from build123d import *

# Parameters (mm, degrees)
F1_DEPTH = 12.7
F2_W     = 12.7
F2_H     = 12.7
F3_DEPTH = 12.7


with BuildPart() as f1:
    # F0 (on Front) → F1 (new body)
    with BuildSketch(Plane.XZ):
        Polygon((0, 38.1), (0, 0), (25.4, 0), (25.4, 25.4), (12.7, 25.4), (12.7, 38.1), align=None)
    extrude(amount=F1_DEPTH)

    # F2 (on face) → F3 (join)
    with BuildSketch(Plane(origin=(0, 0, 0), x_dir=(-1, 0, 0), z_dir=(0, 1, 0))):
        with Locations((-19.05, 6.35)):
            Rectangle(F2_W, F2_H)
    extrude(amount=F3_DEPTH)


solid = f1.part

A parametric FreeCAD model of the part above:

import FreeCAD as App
import Part
import Sketcher
from FreeCAD import Vector
Q = App.Units.Quantity


def add_polygon(sketch, points):
    """Adds a closed chain of lines whose ends are joined by coincident constraints."""
    first, n = sketch.GeometryCount, len(points)
    for a, b in zip(points, points[1:] + points[:1]):
        sketch.addGeometry(Part.LineSegment(App.Vector(*a, 0), App.Vector(*b, 0)), False)
    for i in range(n):
        sketch.addConstraint(Sketcher.Constraint("Coincident", first + i, 2, first + (i + 1) % n, 1))

doc = App.newDocument("Part")
body = doc.addObject("PartDesign::Body", "Body")

# Sketch on XZ plane
sketch1 = body.newObject("Sketcher::SketchObject", "Sketch")
sketch1.AttachmentSupport = (doc.getObject("XZ_Plane"), [""])
sketch1.MapMode = "FlatFace"
add_polygon(sketch1, [(0, 38), (0, 0), (25, 0), (25, 25), (13, 25), (13, 38)])  # lines 0-5
sketch1.addConstraint(Sketcher.Constraint("Vertical", 0))
sketch1.addConstraint(Sketcher.Constraint("Horizontal", 1))
sketch1.addConstraint(Sketcher.Constraint("Vertical", 2))
sketch1.addConstraint(Sketcher.Constraint("Horizontal", 3))
sketch1.addConstraint(Sketcher.Constraint("Vertical", 4))
sketch1.addConstraint(Sketcher.Constraint("Horizontal", 5))
sketch1.addConstraint(Sketcher.Constraint("Coincident", 0, 2, -1, 1))
sketch1.addConstraint(Sketcher.Constraint("Equal", 3, 5))
sketch1.addConstraint(Sketcher.Constraint("Equal", 1, 2))
sketch1.addConstraint(Sketcher.Constraint("Equal", 5, 4))
sketch1.addConstraint(Sketcher.Constraint("DistanceX", 1, 1, 1, 2, Q("1 in")))
pad1 = body.newObject("PartDesign::Pad", "Pad")
pad1.Profile = sketch1
pad1.Length = Q("0.5 in")

# Sketch on XZ plane
sketch2 = body.newObject("Sketcher::SketchObject", "Sketch001")
sketch2.AttachmentSupport = (doc.getObject("XZ_Plane"), [""])
sketch2.MapMode = "FlatFace"
add_polygon(sketch2, [(25, 13), (25, 0), (13, 0), (13, 13)])  # lines 0-3
sketch2.addConstraint(Sketcher.Constraint("Vertical", 0))
sketch2.addConstraint(Sketcher.Constraint("Horizontal", 1))
sketch2.addConstraint(Sketcher.Constraint("Vertical", 2))
sketch2.addConstraint(Sketcher.Constraint("Horizontal", 3))
sketch2.addConstraint(Sketcher.Constraint("PointOnObject", 0, 2, -1))
sketch2.addConstraint(Sketcher.Constraint("Equal", 3, 0))
sketch2.addConstraint(Sketcher.Constraint("DistanceX", 1, 2, 1, 1, Q("0.5 in")))
sketch2.addConstraint(Sketcher.Constraint("DistanceX", -1, 1, 0, 2, Q("1 in")))
pad2 = body.newObject("PartDesign::Pad", "Pad001")
pad2.Profile = sketch2
pad2.Length = Q("0.5 in")
pad2.Reversed = True

doc.recompute()
